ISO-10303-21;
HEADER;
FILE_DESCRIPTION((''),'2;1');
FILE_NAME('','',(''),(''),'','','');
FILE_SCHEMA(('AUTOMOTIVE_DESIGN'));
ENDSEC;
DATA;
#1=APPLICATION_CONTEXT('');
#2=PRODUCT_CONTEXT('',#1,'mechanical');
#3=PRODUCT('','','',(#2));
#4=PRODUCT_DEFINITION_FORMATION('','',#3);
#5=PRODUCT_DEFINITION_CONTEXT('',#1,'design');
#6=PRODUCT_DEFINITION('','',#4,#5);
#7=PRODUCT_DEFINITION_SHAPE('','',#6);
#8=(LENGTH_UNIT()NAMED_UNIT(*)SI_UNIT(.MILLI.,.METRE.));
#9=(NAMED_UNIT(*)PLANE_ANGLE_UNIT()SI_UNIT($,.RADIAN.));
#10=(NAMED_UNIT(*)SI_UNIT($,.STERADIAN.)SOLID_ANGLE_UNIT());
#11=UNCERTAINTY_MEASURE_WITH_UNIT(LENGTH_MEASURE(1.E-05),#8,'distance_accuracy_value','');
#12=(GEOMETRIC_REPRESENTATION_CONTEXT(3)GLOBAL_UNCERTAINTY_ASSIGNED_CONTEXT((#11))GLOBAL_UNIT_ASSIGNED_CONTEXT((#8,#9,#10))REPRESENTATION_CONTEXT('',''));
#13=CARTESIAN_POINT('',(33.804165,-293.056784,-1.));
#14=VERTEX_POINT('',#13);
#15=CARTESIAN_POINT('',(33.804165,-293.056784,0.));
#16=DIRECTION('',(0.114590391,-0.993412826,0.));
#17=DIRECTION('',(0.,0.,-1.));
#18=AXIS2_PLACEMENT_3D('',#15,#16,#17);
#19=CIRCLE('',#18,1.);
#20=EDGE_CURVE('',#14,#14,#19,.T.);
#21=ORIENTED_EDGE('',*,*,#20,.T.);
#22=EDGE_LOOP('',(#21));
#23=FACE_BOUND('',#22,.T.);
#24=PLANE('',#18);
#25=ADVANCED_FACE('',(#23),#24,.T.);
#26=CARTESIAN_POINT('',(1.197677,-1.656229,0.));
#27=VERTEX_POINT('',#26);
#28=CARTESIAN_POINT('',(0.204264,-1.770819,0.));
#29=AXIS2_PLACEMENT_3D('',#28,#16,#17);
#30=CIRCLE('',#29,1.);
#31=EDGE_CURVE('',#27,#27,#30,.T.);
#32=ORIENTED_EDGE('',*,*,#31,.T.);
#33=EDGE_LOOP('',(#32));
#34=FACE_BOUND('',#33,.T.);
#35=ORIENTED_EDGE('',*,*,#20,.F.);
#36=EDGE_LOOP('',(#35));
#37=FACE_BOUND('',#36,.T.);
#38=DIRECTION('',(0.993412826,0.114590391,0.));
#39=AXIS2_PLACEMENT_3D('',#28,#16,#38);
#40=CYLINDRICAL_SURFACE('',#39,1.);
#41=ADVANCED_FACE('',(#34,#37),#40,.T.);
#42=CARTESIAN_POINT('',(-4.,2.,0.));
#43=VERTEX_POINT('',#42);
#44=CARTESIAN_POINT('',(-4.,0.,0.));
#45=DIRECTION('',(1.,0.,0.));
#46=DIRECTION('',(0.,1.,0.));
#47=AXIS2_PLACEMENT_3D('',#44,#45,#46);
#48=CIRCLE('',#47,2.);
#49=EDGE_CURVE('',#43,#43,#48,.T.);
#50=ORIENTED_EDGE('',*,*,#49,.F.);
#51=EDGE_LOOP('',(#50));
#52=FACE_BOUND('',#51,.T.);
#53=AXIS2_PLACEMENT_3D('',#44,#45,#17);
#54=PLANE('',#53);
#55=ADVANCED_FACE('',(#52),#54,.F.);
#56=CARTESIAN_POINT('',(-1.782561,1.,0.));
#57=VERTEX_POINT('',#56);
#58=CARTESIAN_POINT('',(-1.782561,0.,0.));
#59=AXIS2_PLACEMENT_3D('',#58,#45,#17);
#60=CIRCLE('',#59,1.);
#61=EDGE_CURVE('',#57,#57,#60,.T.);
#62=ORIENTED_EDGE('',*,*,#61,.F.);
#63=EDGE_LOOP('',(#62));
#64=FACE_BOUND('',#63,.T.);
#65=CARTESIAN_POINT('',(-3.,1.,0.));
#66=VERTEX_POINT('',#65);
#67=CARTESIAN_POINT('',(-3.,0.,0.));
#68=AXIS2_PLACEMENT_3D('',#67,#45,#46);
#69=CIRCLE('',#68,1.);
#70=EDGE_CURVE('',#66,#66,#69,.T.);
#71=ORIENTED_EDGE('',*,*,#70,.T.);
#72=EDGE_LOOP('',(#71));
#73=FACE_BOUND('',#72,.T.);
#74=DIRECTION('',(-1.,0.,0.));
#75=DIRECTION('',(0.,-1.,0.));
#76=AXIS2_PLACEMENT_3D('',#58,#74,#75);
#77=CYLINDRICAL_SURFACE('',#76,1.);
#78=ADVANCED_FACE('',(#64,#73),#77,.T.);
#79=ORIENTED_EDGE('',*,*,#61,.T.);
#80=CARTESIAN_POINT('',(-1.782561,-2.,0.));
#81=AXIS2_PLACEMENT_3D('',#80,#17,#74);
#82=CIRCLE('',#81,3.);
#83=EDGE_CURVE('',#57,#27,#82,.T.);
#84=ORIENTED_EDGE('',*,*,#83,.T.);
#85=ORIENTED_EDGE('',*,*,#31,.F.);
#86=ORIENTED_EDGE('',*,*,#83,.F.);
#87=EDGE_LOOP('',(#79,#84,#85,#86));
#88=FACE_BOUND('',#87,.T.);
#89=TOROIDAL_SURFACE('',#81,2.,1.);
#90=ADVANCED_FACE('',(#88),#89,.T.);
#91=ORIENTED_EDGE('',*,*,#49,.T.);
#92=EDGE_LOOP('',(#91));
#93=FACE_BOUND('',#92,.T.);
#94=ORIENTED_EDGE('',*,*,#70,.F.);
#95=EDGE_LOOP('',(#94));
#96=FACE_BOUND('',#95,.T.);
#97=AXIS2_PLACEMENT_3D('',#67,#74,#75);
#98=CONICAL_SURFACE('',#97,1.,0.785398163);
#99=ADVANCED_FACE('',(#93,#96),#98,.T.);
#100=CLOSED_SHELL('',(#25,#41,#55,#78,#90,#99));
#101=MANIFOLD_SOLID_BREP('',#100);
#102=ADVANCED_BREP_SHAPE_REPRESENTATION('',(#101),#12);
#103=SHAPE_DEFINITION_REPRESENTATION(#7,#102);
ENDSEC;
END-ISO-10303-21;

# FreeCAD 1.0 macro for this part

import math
import FreeCAD as App
import Part
import Sketcher

V = App.Vector
Q = App.Units.Quantity

doc = App.newDocument("Part")
body = doc.addObject("PartDesign::Body", "Body")

# Sketch on YZ plane
sketch1 = doc.addObject("Sketcher::SketchObject", "Sketch")
body.addObject(sketch1)
sketch1.AttachmentSupport = (doc.YZ_Plane, [""])
sketch1.MapMode = "FlatFace"
sketch1.AttachmentOffset = App.Placement(V(0, 0, -4), App.Rotation())
sketch1.addGeometry(Part.Circle(V(0, 0, 0), V(0, 0, 1), 1), False)
sketch1.addConstraint(Sketcher.Constraint("Coincident", 0, 3, -1, 1))
sketch1.addConstraint(Sketcher.Constraint("Diameter", 0, 2.0))

# Sketch on XY plane
sketch2 = doc.addObject("Sketcher::SketchObject", "Sketch001")
body.addObject(sketch2)
sketch2.AttachmentSupport = (doc.XY_Plane, [""])
sketch2.MapMode = "FlatFace"
sketch2.addGeometry(Part.LineSegment(V(-4, 0, 0), V(-1.782561, 0, 0)), False)
sketch2.addGeometry(Part.ArcOfCircle(Part.Circle(V(-1.782561, -2, 0), V(0, 0, 1), 2), math.radians(6.58), math.radians(90)), False)
sketch2.addGeometry(Part.LineSegment(V(0.204264, -1.770819, 0), V(33.804165, -293.056784, 0)), False)
sketch2.addConstraint(Sketcher.Constraint("Tangent", 0, 2, 1, 2))
sketch2.addConstraint(Sketcher.Constraint("Tangent", 1, 1, 2, 1))
sketch2.addConstraint(Sketcher.Constraint("Horizontal", 0))
sketch2.addConstraint(Sketcher.Constraint("PointOnObject", 0, 1, -1))
sketch2.addConstraint(Sketcher.Constraint("Radius", 1, 2.0))
sketch2.addConstraint(Sketcher.Constraint("DistanceX", 0, 1, -1, 1, 4.0))
sketch2.addConstraint(Sketcher.Constraint("Angle", 2, Q("-83.42 deg")))
sketch2.addConstraint(Sketcher.Constraint("DistanceX", 0, 1, 0, 2, 2.217439))
sketch2.addConstraint(Sketcher.Constraint("DistanceX", 1, 1, 2, 2, 33.599901))
doc.recompute()

additivepipe = doc.addObject("PartDesign::AdditivePipe", "AdditivePipe")
body.addObject(additivepipe)
additivepipe.Profile = sketch1
additivepipe.Spine = (sketch2, ["Edge1", "Edge2", "Edge3"])

# Sketch on XY plane
sketch3 = doc.addObject("Sketcher::SketchObject", "Sketch002")
body.addObject(sketch3)
sketch3.AttachmentSupport = (doc.XY_Plane, [""])
sketch3.MapMode = "FlatFace"
sketch3.addGeometry(Part.LineSegment(V(-4, 2, 0), V(-4, 1, 0)), False)
sketch3.addGeometry(Part.LineSegment(V(-4, 1, 0), V(-3, 1, 0)), False)
sketch3.addGeometry(Part.LineSegment(V(-3, 1, 0), V(-4, 2, 0)), False)
sketch3.addConstraint(Sketcher.Constraint("Coincident", 0, 2, 1, 1))
sketch3.addConstraint(Sketcher.Constraint("Coincident", 1, 2, 2, 1))
sketch3.addConstraint(Sketcher.Constraint("Coincident", 2, 2, 0, 1))
sketch3.addConstraint(Sketcher.Constraint("Vertical", 0))
sketch3.addConstraint(Sketcher.Constraint("Horizontal", 1))
sketch3.addConstraint(Sketcher.Constraint("Equal", 1, 0))
sketch3.addConstraint(Sketcher.Constraint("DistanceX", 1, 1, 1, 2, 1.0))
sketch3.addConstraint(Sketcher.Constraint("DistanceX", 0, 2, -1, 1, 4.0))
sketch3.addConstraint(Sketcher.Constraint("DistanceY", -1, 1, 0, 2, 1.0))
revolution = doc.addObject("PartDesign::Revolution", "Revolution")
body.addObject(revolution)
revolution.Profile = sketch3
revolution.ReferenceAxis = (sketch3, ["H_Axis"])
revolution.Angle = 360

doc.recompute()
